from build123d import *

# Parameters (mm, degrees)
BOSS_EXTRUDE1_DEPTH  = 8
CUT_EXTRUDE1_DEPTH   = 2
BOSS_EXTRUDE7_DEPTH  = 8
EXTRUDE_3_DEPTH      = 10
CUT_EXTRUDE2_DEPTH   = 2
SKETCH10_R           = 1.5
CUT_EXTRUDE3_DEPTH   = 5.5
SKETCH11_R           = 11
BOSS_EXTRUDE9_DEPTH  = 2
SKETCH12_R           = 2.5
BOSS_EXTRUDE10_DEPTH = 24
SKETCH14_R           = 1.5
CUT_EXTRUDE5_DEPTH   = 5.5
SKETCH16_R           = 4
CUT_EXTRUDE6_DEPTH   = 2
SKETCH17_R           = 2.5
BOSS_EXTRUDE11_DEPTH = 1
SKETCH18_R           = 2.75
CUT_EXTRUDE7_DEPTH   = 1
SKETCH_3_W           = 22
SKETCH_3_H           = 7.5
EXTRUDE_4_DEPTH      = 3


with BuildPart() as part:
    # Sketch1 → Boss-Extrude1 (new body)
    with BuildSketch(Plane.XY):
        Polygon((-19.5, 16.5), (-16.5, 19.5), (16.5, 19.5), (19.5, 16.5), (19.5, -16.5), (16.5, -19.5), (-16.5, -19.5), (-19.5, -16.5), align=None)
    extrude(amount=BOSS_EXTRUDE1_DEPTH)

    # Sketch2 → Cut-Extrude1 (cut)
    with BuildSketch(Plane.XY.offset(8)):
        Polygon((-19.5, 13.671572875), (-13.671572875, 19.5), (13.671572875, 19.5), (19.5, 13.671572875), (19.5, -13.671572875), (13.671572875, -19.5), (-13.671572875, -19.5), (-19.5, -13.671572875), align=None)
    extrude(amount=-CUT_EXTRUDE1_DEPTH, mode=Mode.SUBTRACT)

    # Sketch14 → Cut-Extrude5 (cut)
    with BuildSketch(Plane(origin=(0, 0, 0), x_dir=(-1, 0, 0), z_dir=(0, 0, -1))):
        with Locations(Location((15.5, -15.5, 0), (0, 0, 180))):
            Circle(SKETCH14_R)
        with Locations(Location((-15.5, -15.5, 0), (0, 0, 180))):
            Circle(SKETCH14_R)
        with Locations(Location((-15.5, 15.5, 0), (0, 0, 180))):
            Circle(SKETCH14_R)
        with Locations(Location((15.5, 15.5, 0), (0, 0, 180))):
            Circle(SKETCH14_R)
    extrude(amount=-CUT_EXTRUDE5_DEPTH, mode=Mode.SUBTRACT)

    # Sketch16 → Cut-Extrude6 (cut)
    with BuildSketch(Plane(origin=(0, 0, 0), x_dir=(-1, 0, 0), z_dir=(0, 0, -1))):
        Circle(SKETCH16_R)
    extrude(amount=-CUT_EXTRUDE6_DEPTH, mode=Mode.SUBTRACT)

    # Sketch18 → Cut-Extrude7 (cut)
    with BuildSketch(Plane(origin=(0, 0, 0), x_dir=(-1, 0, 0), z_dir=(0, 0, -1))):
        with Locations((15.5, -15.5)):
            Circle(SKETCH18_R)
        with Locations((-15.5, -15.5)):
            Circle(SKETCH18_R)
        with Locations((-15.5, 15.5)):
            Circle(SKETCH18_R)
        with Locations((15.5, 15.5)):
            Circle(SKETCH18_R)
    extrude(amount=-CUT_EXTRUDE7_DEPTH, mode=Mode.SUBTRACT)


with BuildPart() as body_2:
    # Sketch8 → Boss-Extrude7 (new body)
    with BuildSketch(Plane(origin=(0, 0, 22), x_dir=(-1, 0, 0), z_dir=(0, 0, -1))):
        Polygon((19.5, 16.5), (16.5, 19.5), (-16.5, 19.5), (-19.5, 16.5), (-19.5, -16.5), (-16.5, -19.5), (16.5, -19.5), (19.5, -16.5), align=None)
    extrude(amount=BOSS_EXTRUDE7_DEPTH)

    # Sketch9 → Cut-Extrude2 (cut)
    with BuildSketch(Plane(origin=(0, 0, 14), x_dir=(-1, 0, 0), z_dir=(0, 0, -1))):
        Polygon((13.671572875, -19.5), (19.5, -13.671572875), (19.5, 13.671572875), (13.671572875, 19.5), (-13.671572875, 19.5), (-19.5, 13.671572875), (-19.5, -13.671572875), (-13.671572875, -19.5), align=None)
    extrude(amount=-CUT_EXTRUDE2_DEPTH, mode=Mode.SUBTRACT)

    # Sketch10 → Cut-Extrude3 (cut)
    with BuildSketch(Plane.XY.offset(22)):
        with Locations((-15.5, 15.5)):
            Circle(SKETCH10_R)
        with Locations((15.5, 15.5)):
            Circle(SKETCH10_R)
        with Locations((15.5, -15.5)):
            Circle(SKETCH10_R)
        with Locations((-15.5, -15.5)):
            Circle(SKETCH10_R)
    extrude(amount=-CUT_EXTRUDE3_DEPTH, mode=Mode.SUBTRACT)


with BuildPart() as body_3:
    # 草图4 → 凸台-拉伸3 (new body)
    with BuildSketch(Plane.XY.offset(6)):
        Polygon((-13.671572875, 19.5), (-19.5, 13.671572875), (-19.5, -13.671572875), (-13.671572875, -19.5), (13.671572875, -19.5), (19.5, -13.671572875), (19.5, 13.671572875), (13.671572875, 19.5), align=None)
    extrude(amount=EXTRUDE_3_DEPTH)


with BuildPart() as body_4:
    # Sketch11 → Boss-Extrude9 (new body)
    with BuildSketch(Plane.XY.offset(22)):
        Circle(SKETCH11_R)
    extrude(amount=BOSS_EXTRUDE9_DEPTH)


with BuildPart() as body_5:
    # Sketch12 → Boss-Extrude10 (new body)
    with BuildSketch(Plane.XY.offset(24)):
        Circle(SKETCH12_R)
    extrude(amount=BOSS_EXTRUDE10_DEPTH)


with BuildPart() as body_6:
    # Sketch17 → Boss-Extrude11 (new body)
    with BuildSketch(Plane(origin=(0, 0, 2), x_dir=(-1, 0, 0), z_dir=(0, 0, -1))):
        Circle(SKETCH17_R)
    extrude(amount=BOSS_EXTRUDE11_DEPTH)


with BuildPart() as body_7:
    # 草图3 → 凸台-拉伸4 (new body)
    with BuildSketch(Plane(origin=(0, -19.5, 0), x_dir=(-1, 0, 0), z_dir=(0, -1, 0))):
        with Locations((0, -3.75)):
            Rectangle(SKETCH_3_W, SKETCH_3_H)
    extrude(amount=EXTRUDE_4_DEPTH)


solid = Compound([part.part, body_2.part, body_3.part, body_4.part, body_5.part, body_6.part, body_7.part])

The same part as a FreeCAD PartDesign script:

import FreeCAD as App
import Part
import Sketcher
from FreeCAD import Vector
Q = App.Units.Quantity

doc = App.newDocument("Part")
body = doc.addObject("PartDesign::Body", "Body")

sketch1 = body.newObject("Sketcher::SketchObject", "Sketch")
sketch1.AttachmentSupport = (doc.getObject("XY_Plane"), [""])
sketch1.MapMode = "FlatFace"
sketch1.addGeometry([
    Part.LineSegment(Vector(-16.5, 19.5, 0), Vector(-19.5, 16.5, 0)),
    Part.LineSegment(Vector(-19.5, 16.5, 0), Vector(-19.5, -16.5, 0)),
    Part.LineSegment(Vector(-19.5, -16.5, 0), Vector(-16.5, -19.5, 0)),
    Part.LineSegment(Vector(-16.5, -19.5, 0), Vector(16.5, -19.5, 0)),
    Part.LineSegment(Vector(16.5, -19.5, 0), Vector(19.5, -16.5, 0)),
    Part.LineSegment(Vector(19.5, -16.5, 0), Vector(19.5, 16.5, 0)),
    Part.LineSegment(Vector(19.5, 16.5, 0), Vector(16.5, 19.5, 0)),
    Part.LineSegment(Vector(16.5, 19.5, 0), Vector(-16.5, 19.5, 0)),
], False)
sketch1.addConstraint([
    Sketcher.Constraint("Coincident", 0, 2, 1, 1),
    Sketcher.Constraint("Coincident", 1, 2, 2, 1),
    Sketcher.Constraint("Coincident", 2, 2, 3, 1),
    Sketcher.Constraint("Coincident", 3, 2, 4, 1),
    Sketcher.Constraint("Coincident", 4, 2, 5, 1),
    Sketcher.Constraint("Coincident", 5, 2, 6, 1),
    Sketcher.Constraint("Coincident", 6, 2, 7, 1),
    Sketcher.Constraint("Coincident", 7, 2, 0, 1),
    Sketcher.Constraint("Vertical", 1),
    Sketcher.Constraint("Horizontal", 3),
    Sketcher.Constraint("Vertical", 5),
    Sketcher.Constraint("Horizontal", 7),
    Sketcher.Constraint("Symmetric", 0, 2, 4, 2, -1, 1),
    Sketcher.Constraint("Symmetric", 2, 2, 6, 2, -1, 1),
    Sketcher.Constraint("Perpendicular", 0, 2),
    Sketcher.Constraint("Perpendicular", 2, 4),
    Sketcher.Constraint("Perpendicular", 4, 6),
    Sketcher.Constraint("Horizontal", 1, 2, 4, 2),
    Sketcher.Constraint("Vertical", 3, 2, 6, 2),
    Sketcher.Constraint("Equal", 7, 1),
    Sketcher.Constraint("DistanceX", 3, 1, 3, 2, Q("33 mm")),
    Sketcher.Constraint("DistanceX", 1, 2, 2, 2, Q("3 mm")),
])
pad1 = body.newObject("PartDesign::Pad", "Pad")
pad1.Profile = sketch1
pad1.Length = 8

sketch2 = body.newObject("Sketcher::SketchObject", "Sketch001")
sketch2.AttachmentSupport = (doc.getObject("XY_Plane"), [""])
sketch2.MapMode = "FlatFace"
sketch2.AttachmentOffset = App.Placement(Vector(0, 0, 8), App.Rotation())
sketch2.addGeometry([
    Part.LineSegment(Vector(-14, 20, 0), Vector(-20, 14, 0)),
    Part.LineSegment(Vector(-20, 14, 0), Vector(-20, -14, 0)),
    Part.LineSegment(Vector(-20, -14, 0), Vector(-14, -20, 0)),
    Part.LineSegment(Vector(-14, -20, 0), Vector(14, -20, 0)),
    Part.LineSegment(Vector(14, -20, 0), Vector(20, -14, 0)),
    Part.LineSegment(Vector(20, -14, 0), Vector(20, 14, 0)),
    Part.LineSegment(Vector(20, 14, 0), Vector(14, 20, 0)),
    Part.LineSegment(Vector(14, 20, 0), Vector(-14, 20, 0)),
], False)
sketch2.addConstraint([
    Sketcher.Constraint("Coincident", 0, 2, 1, 1),
    Sketcher.Constraint("Coincident", 1, 2, 2, 1),
    Sketcher.Constraint("Coincident", 2, 2, 3, 1),
    Sketcher.Constraint("Coincident", 3, 2, 4, 1),
    Sketcher.Constraint("Coincident", 4, 2, 5, 1),
    Sketcher.Constraint("Coincident", 5, 2, 6, 1),
    Sketcher.Constraint("Coincident", 6, 2, 7, 1),
    Sketcher.Constraint("Coincident", 7, 2, 0, 1),
    Sketcher.Constraint("Vertical", 1),
    Sketcher.Constraint("Horizontal", 3),
    Sketcher.Constraint("Vertical", 5),
    Sketcher.Constraint("Horizontal", 7),
    Sketcher.Constraint("Symmetric", 0, 2, 4, 2, -1, 1),
    Sketcher.Constraint("Symmetric", 2, 2, 6, 2, -1, 1),
    Sketcher.Constraint("Perpendicular", 0, 2),
    Sketcher.Constraint("Perpendicular", 2, 4),
    Sketcher.Constraint("Perpendicular", 4, 6),
    Sketcher.Constraint("Horizontal", 1, 2, 4, 2),
    Sketcher.Constraint("Vertical", 3, 2, 6, 2),
    Sketcher.Constraint("Equal", 7, 1),
    Sketcher.Constraint("DistanceX", 1, 2, 4, 2, Q("39 mm")),
    Sketcher.Constraint("Distance", 0, Q("8.242641 mm")),
])
pocket1 = body.newObject("PartDesign::Pocket", "Pocket")
pocket1.Profile = sketch2
pocket1.Length = 2

sketch3 = body.newObject("Sketcher::SketchObject", "Sketch002")
sketch3.AttachmentSupport = (doc.getObject("XY_Plane"), [""])
sketch3.MapMode = "FlatFace"
sketch3.addGeometry([
    Part.Circle(Vector(-15.5, -15.5, 0), Vector(0, 0, 1), 1.5),
    Part.Circle(Vector(15.5, -15.5, 0), Vector(0, 0, 1), 1.5),
    Part.Circle(Vector(15.5, 15.5, 0), Vector(0, 0, 1), 1.5),
    Part.Circle(Vector(-15.5, 15.5, 0), Vector(0, 0, 1), 1.5),
], False)
sketch3.addConstraint([
    Sketcher.Constraint("Equal", 0, 1),
    Sketcher.Constraint("Equal", 1, 2),
    Sketcher.Constraint("Equal", 2, 3),
    Sketcher.Constraint("Symmetric", 0, 3, 2, 3, -1, 1),
    Sketcher.Constraint("Symmetric", 1, 3, 3, 3, -1, 1),
    Sketcher.Constraint("Symmetric", 0, 3, 1, 3, -2),
    Sketcher.Constraint("Diameter", 0, Q("3 mm")),
    Sketcher.Constraint("DistanceX", 0, 3, 1, 3, Q("31 mm")),
    Sketcher.Constraint("DistanceY", 1, 3, 2, 3, Q("31 mm")),
])
pocket2 = body.newObject("PartDesign::Pocket", "Pocket001")
pocket2.Profile = sketch3
pocket2.Length = 5.5
pocket2.Reversed = True

sketch4 = body.newObject("Sketcher::SketchObject", "Sketch003")
sketch4.AttachmentSupport = (doc.getObject("XY_Plane"), [""])
sketch4.MapMode = "FlatFace"
sketch4.addGeometry(Part.Circle(Vector(0, 0, 0), Vector(0, 0, 1), 4), False)
sketch4.addConstraint([
    Sketcher.Constraint("Coincident", 0, 3, -1, 1),
    Sketcher.Constraint("Diameter", 0, Q("8 mm")),
])
pocket3 = body.newObject("PartDesign::Pocket", "Pocket002")
pocket3.Profile = sketch4
pocket3.Length = 2
pocket3.Reversed = True

sketch5 = body.newObject("Sketcher::SketchObject", "Sketch004")
sketch5.AttachmentSupport = (doc.getObject("XY_Plane"), [""])
sketch5.MapMode = "FlatFace"
sketch5.addGeometry([
    Part.Circle(Vector(-15.5, -15.5, 0), Vector(0, 0, 1), 2.8),
    Part.Circle(Vector(15.5, -15.5, 0), Vector(0, 0, 1), 2.8),
    Part.Circle(Vector(15.5, 15.5, 0), Vector(0, 0, 1), 2.8),
    Part.Circle(Vector(-15.5, 15.5, 0), Vector(0, 0, 1), 2.8),
], False)
sketch5.addConstraint([
    Sketcher.Constraint("Equal", 0, 1),
    Sketcher.Constraint("Equal", 1, 2),
    Sketcher.Constraint("Equal", 2, 3),
    Sketcher.Constraint("Symmetric", 0, 3, 2, 3, -1, 1),
    Sketcher.Constraint("Symmetric", 1, 3, 3, 3, -1, 1),
    Sketcher.Constraint("Symmetric", 0, 3, 1, 3, -2),
    Sketcher.Constraint("Diameter", 0, Q("5.5 mm")),
    Sketcher.Constraint("DistanceX", 0, 3, 1, 3, Q("31 mm")),
    Sketcher.Constraint("DistanceY", 1, 3, 2, 3, Q("31 mm")),
])
pocket4 = body.newObject("PartDesign::Pocket", "Pocket003")
pocket4.Profile = sketch5
pocket4.Length = 1
pocket4.Reversed = True
body2 = doc.addObject("PartDesign::Body", "Body001")

sketch6 = body2.newObject("Sketcher::SketchObject", "Sketch005")
sketch6.AttachmentSupport = (doc.getObject("XY_Plane001"), [""])
sketch6.MapMode = "FlatFace"
sketch6.AttachmentOffset = App.Placement(Vector(0, 0, 22), App.Rotation())
sketch6.addGeometry([
    Part.LineSegment(Vector(-19.5, 16.5, 0), Vector(-16.5, 19.5, 0)),
    Part.LineSegment(Vector(-16.5, 19.5, 0), Vector(16.5, 19.5, 0)),
    Part.LineSegment(Vector(16.5, 19.5, 0), Vector(19.5, 16.5, 0)),
    Part.LineSegment(Vector(19.5, 16.5, 0), Vector(19.5, -16.5, 0)),
    Part.LineSegment(Vector(19.5, -16.5, 0), Vector(16.5, -19.5, 0)),
    Part.LineSegment(Vector(16.5, -19.5, 0), Vector(-16.5, -19.5, 0)),
    Part.LineSegment(Vector(-16.5, -19.5, 0), Vector(-19.5, -16.5, 0)),
    Part.LineSegment(Vector(-19.5, -16.5, 0), Vector(-19.5, 16.5, 0)),
], False)
sketch6.addConstraint([
    Sketcher.Constraint("Coincident", 0, 2, 1, 1),
    Sketcher.Constraint("Coincident", 1, 2, 2, 1),
    Sketcher.Constraint("Coincident", 2, 2, 3, 1),
    Sketcher.Constraint("Coincident", 3, 2, 4, 1),
    Sketcher.Constraint("Coincident", 4, 2, 5, 1),
    Sketcher.Constraint("Coincident", 5, 2, 6, 1),
    Sketcher.Constraint("Coincident", 6, 2, 7, 1),
    Sketcher.Constraint("Coincident", 7, 2, 0, 1),
    Sketcher.Constraint("Horizontal", 1),
    Sketcher.Constraint("Vertical", 3),
    Sketcher.Constraint("Horizontal", 5),
    Sketcher.Constraint("Vertical", 7),
    Sketcher.Constraint("Symmetric", 0, 2, 4, 2, -1, 1),
    Sketcher.Constraint("Symmetric", 2, 2, 6, 2, -1, 1),
    Sketcher.Constraint("Perpendicular", 0, 2),
    Sketcher.Constraint("Perpendicular", 2, 4),
    Sketcher.Constraint("Perpendicular", 4, 6),
    Sketcher.Constraint("Horizontal", 3, 2, 6, 2),
    Sketcher.Constraint("Vertical", 1, 2, 4, 2),
    Sketcher.Constraint("Equal", 5, 3),
    Sketcher.Constraint("DistanceX", 1, 1, 1, 2, Q("33 mm")),
    Sketcher.Constraint("DistanceX", 1, 2, 2, 2, Q("3 mm")),
])
pad2 = body2.newObject("PartDesign::Pad", "Pad001")
pad2.Profile = sketch6
pad2.Length = 8
pad2.Reversed = True

sketch7 = body2.newObject("Sketcher::SketchObject", "Sketch006")
sketch7.AttachmentSupport = (doc.getObject("XY_Plane001"), [""])
sketch7.MapMode = "FlatFace"
sketch7.AttachmentOffset = App.Placement(Vector(0, 0, 14), App.Rotation())
sketch7.addGeometry([
    Part.LineSegment(Vector(-14, -20, 0), Vector(-20, -14, 0)),
    Part.LineSegment(Vector(-20, -14, 0), Vector(-20, 14, 0)),
    Part.LineSegment(Vector(-20, 14, 0), Vector(-14, 20, 0)),
    Part.LineSegment(Vector(-14, 20, 0), Vector(14, 20, 0)),
    Part.LineSegment(Vector(14, 20, 0), Vector(20, 14, 0)),
    Part.LineSegment(Vector(20, 14, 0), Vector(20, -14, 0)),
    Part.LineSegment(Vector(20, -14, 0), Vector(14, -20, 0)),
    Part.LineSegment(Vector(14, -20, 0), Vector(-14, -20, 0)),
], False)
sketch7.addConstraint([
    Sketcher.Constraint("Coincident", 0, 2, 1, 1),
    Sketcher.Constraint("Coincident", 1, 2, 2, 1),
    Sketcher.Constraint("Coincident", 2, 2, 3, 1),
    Sketcher.Constraint("Coincident", 3, 2, 4, 1),
    Sketcher.Constraint("Coincident", 4, 2, 5, 1),
    Sketcher.Constraint("Coincident", 5, 2, 6, 1),
    Sketcher.Constraint("Coincident", 6, 2, 7, 1),
    Sketcher.Constraint("Coincident", 7, 2, 0, 1),
    Sketcher.Constraint("Vertical", 1),
    Sketcher.Constraint("Horizontal", 3),
    Sketcher.Constraint("Vertical", 5),
    Sketcher.Constraint("Horizontal", 7),
    Sketcher.Constraint("Symmetric", 0, 2, 4, 2, -1, 1),
    Sketcher.Constraint("Symmetric", 2, 2, 6, 2, -1, 1),
    Sketcher.Constraint("Perpendicular", 0, 2),
    Sketcher.Constraint("Perpendicular", 2, 4),
    Sketcher.Constraint("Perpendicular", 4, 6),
    Sketcher.Constraint("Horizontal", 1, 2, 4, 2),
    Sketcher.Constraint("Vertical", 3, 2, 6, 2),
    Sketcher.Constraint("Equal", 7, 1),
    Sketcher.Constraint("DistanceX", 1, 2, 4, 2, Q("39 mm")),
    Sketcher.Constraint("Distance", 0, Q("8.242641 mm")),
])
pocket5 = body2.newObject("PartDesign::Pocket", "Pocket004")
pocket5.Profile = sketch7
pocket5.Length = 2
pocket5.Reversed = True

sketch8 = body2.newObject("Sketcher::SketchObject", "Sketch007")
sketch8.AttachmentSupport = (doc.getObject("XY_Plane001"), [""])
sketch8.MapMode = "FlatFace"
sketch8.AttachmentOffset = App.Placement(Vector(0, 0, 22), App.Rotation())
sketch8.addGeometry([
    Part.Circle(Vector(-15.5, 15.5, 0), Vector(0, 0, 1), 1.5),
    Part.Circle(Vector(15.5, 15.5, 0), Vector(0, 0, 1), 1.5),
    Part.Circle(Vector(15.5, -15.5, 0), Vector(0, 0, 1), 1.5),
    Part.Circle(Vector(-15.5, -15.5, 0), Vector(0, 0, 1), 1.5),
], False)
sketch8.addConstraint([
    Sketcher.Constraint("Equal", 0, 1),
    Sketcher.Constraint("Equal", 1, 2),
    Sketcher.Constraint("Equal", 2, 3),
    Sketcher.Constraint("Symmetric", 0, 3, 2, 3, -1, 1),
    Sketcher.Constraint("Symmetric", 1, 3, 3, 3, -1, 1),
    Sketcher.Constraint("Symmetric", 0, 3, 1, 3, -2),
    Sketcher.Constraint("Diameter", 0, Q("3 mm")),
    Sketcher.Constraint("DistanceX", 0, 3, 1, 3, Q("31 mm")),
    Sketcher.Constraint("DistanceY", 2, 3, 1, 3, Q("31 mm")),
])
pocket6 = body2.newObject("PartDesign::Pocket", "Pocket005")
pocket6.Profile = sketch8
pocket6.Length = 5.5
body3 = doc.addObject("PartDesign::Body", "Body002")

sketch9 = body3.newObject("Sketcher::SketchObject", "Sketch008")
sketch9.AttachmentSupport = (doc.getObject("XY_Plane002"), [""])
sketch9.MapMode = "FlatFace"
sketch9.AttachmentOffset = App.Placement(Vector(0, 0, 6), App.Rotation())
sketch9.addGeometry([
    Part.LineSegment(Vector(-14, 20, 0), Vector(-20, 14, 0)),
    Part.LineSegment(Vector(-20, 14, 0), Vector(-20, -14, 0)),
    Part.LineSegment(Vector(-20, -14, 0), Vector(-14, -20, 0)),
    Part.LineSegment(Vector(-14, -20, 0), Vector(14, -20, 0)),
    Part.LineSegment(Vector(14, -20, 0), Vector(20, -14, 0)),
    Part.LineSegment(Vector(20, -14, 0), Vector(20, 14, 0)),
    Part.LineSegment(Vector(20, 14, 0), Vector(14, 20, 0)),
    Part.LineSegment(Vector(14, 20, 0), Vector(-14, 20, 0)),
], False)
sketch9.addConstraint([
    Sketcher.Constraint("Coincident", 0, 2, 1, 1),
    Sketcher.Constraint("Coincident", 1, 2, 2, 1),
    Sketcher.Constraint("Coincident", 2, 2, 3, 1),
    Sketcher.Constraint("Coincident", 3, 2, 4, 1),
    Sketcher.Constraint("Coincident", 4, 2, 5, 1),
    Sketcher.Constraint("Coincident", 5, 2, 6, 1),
    Sketcher.Constraint("Coincident", 6, 2, 7, 1),
    Sketcher.Constraint("Coincident", 7, 2, 0, 1),
    Sketcher.Constraint("Vertical", 1),
    Sketcher.Constraint("Horizontal", 3),
    Sketcher.Constraint("Vertical", 5),
    Sketcher.Constraint("Horizontal", 7),
    Sketcher.Constraint("Symmetric", 0, 2, 4, 2, -1, 1),
    Sketcher.Constraint("Symmetric", 2, 2, 6, 2, -1, 1),
    Sketcher.Constraint("Perpendicular", 0, 2),
    Sketcher.Constraint("Perpendicular", 2, 4),
    Sketcher.Constraint("Perpendicular", 4, 6),
    Sketcher.Constraint("Horizontal", 1, 2, 4, 2),
    Sketcher.Constraint("Vertical", 3, 2, 6, 2),
    Sketcher.Constraint("Equal", 7, 1),
    Sketcher.Constraint("DistanceX", 1, 2, 4, 2, Q("39 mm")),
    Sketcher.Constraint("Distance", 0, Q("8.242641 mm")),
])
pad3 = body3.newObject("PartDesign::Pad", "Pad002")
pad3.Profile = sketch9
pad3.Length = 10
body4 = doc.addObject("PartDesign::Body", "Body003")

sketch10 = body4.newObject("Sketcher::SketchObject", "Sketch009")
sketch10.AttachmentSupport = (doc.getObject("XY_Plane003"), [""])
sketch10.MapMode = "FlatFace"
sketch10.AttachmentOffset = App.Placement(Vector(0, 0, 22), App.Rotation())
sketch10.addGeometry(Part.Circle(Vector(0, 0, 0), Vector(0, 0, 1), 11), False)
sketch10.addConstraint([
    Sketcher.Constraint("Coincident", 0, 3, -1, 1),
    Sketcher.Constraint("Diameter", 0, Q("22 mm")),
])
pad4 = body4.newObject("PartDesign::Pad", "Pad003")
pad4.Profile = sketch10
pad4.Length = 2
body5 = doc.addObject("PartDesign::Body", "Body004")

sketch11 = body5.newObject("Sketcher::SketchObject", "Sketch010")
sketch11.AttachmentSupport = (doc.getObject("XY_Plane004"), [""])
sketch11.MapMode = "FlatFace"
sketch11.AttachmentOffset = App.Placement(Vector(0, 0, 24), App.Rotation())
sketch11.addGeometry(Part.Circle(Vector(0, 0, 0), Vector(0, 0, 1), 2.5), False)
sketch11.addConstraint([
    Sketcher.Constraint("Coincident", 0, 3, -1, 1),
    Sketcher.Constraint("Diameter", 0, Q("5 mm")),
])
pad5 = body5.newObject("PartDesign::Pad", "Pad004")
pad5.Profile = sketch11
pad5.Length = 24
body6 = doc.addObject("PartDesign::Body", "Body005")

sketch12 = body6.newObject("Sketcher::SketchObject", "Sketch011")
sketch12.AttachmentSupport = (doc.getObject("XY_Plane005"), [""])
sketch12.MapMode = "FlatFace"
sketch12.AttachmentOffset = App.Placement(Vector(0, 0, 2), App.Rotation())
sketch12.addGeometry(Part.Circle(Vector(0, 0, 0), Vector(0, 0, 1), 2.5), False)
sketch12.addConstraint([
    Sketcher.Constraint("Coincident", 0, 3, -1, 1),
    Sketcher.Constraint("Diameter", 0, Q("5 mm")),
])
pad6 = body6.newObject("PartDesign::Pad", "Pad005")
pad6.Profile = sketch12
pad6.Length = 1
pad6.Reversed = True
body7 = doc.addObject("PartDesign::Body", "Body006")

sketch13 = body7.newObject("Sketcher::SketchObject", "Sketch012")
sketch13.AttachmentSupport = (doc.getObject("XZ_Plane006"), [""])
sketch13.MapMode = "FlatFace"
sketch13.AttachmentOffset = App.Placement(Vector(0, 0, 19.5), App.Rotation())
sketch13.addGeometry([
    Part.LineSegment(Vector(11, 0, 0), Vector(11, 8, 0)),
    Part.LineSegment(Vector(11, 8, 0), Vector(-11, 8, 0)),
    Part.LineSegment(Vector(-11, 8, 0), Vector(-11, 0, 0)),
    Part.LineSegment(Vector(-11, 0, 0), Vector(11, 0, 0)),
], False)
sketch13.addConstraint([
    Sketcher.Constraint("Coincident", 0, 2, 1, 1),
    Sketcher.Constraint("Coincident", 1, 2, 2, 1),
    Sketcher.Constraint("Coincident", 2, 2, 3, 1),
    Sketcher.Constraint("Coincident", 3, 2, 0, 1),
    Sketcher.Constraint("Vertical", 0),
    Sketcher.Constraint("Horizontal", 1),
    Sketcher.Constraint("Vertical", 2),
    Sketcher.Constraint("Horizontal", 3),
    Sketcher.Constraint("Symmetric", 2, 2, 3, 2, -1, 1),
    Sketcher.Constraint("DistanceX", 1, 2, 1, 1, Q("22 mm")),
    Sketcher.Constraint("DistanceY", 0, 1, 0, 2, Q("7.5 mm")),
])
pad7 = body7.newObject("PartDesign::Pad", "Pad006")
pad7.Profile = sketch13
pad7.Length = 3

doc.recompute()
